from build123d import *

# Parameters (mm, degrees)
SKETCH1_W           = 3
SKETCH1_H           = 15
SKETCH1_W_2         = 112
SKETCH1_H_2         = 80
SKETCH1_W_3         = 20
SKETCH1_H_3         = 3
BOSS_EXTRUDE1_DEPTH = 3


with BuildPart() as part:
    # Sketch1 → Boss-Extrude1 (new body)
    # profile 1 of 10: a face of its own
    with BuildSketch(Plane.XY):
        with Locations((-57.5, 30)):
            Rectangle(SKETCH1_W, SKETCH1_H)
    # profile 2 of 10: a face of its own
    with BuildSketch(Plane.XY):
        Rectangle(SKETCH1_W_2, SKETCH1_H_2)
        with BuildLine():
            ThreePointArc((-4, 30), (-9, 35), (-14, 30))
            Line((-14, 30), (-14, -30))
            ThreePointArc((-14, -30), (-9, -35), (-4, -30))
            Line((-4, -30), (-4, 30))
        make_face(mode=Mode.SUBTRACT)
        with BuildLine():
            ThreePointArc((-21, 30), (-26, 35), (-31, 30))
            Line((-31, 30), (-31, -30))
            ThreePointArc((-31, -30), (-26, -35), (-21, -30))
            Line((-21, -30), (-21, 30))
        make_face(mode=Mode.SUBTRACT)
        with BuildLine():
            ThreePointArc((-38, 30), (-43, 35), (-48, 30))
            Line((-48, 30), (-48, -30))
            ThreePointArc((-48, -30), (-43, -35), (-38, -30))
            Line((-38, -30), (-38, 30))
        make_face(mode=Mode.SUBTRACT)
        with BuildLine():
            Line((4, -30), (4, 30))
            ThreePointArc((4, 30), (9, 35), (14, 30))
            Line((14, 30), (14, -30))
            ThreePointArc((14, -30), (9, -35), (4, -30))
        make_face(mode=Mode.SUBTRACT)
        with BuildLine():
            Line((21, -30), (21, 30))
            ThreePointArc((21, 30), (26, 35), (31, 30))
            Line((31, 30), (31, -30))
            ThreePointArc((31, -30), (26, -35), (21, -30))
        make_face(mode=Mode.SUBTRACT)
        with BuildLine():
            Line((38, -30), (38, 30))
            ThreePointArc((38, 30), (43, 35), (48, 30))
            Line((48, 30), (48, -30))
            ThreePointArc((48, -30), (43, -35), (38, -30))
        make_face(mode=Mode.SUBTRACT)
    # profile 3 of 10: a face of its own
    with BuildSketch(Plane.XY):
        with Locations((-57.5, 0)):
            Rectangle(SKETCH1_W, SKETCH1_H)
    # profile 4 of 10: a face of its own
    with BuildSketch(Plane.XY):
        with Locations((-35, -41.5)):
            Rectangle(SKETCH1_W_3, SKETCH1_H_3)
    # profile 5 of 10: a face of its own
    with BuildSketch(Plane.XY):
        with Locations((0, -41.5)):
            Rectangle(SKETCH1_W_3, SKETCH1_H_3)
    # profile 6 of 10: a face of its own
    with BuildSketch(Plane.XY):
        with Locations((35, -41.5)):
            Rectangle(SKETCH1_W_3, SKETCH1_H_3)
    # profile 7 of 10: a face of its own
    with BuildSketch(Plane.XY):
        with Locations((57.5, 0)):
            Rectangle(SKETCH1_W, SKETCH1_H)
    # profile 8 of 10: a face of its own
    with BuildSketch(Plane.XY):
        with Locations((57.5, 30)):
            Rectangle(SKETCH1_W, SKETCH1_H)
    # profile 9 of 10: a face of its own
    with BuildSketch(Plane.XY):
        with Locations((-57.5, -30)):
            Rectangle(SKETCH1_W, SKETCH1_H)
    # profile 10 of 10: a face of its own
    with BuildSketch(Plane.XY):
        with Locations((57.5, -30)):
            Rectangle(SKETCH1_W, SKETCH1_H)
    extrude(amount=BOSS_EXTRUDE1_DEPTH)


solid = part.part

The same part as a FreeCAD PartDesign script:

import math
import FreeCAD as App
import Part
import Sketcher
Q = App.Units.Quantity


def add_polygon(sketch, points):
    """Adds a closed chain of lines whose ends are joined by coincident constraints."""
    first, n = sketch.GeometryCount, len(points)
    for a, b in zip(points, points[1:] + points[:1]):
        sketch.addGeometry(Part.LineSegment(App.Vector(*a, 0), App.Vector(*b, 0)), False)
    for i in range(n):
        sketch.addConstraint(Sketcher.Constraint("Coincident", first + i, 2, first + (i + 1) % n, 1))

doc = App.newDocument("Part")
params = doc.addObject("Spreadsheet::Sheet", "Params")
for row, (alias, value) in enumerate([
    ("sketch1_radius", "5 mm"),
    ("sketch1_width", "3 mm"),
    ("sketch1_width2", "11 mm"),
    ("sketch1_width3", "20 mm"),
    ("sketch1_width4", "15 mm"),
    ("pad1_length", "3 mm"),
], start=1):
    params.set(f"A{row}", alias)
    params.set(f"B{row}", "=" + value)
    params.setAlias(f"B{row}", alias)

body = doc.addObject("PartDesign::Body", "Body")

# Sketch on XY plane
sketch1 = body.newObject("Sketcher::SketchObject", "Sketch")
sketch1.AttachmentSupport = (doc.getObject("XY_Plane"), [""])
sketch1.MapMode = "FlatFace"
add_polygon(sketch1, [(-59, 37.5), (-59, 22.5), (-56, 22.5), (-56, 7.5), (-59, 7.5), (-59, -7.5), (-56, -7.5), (-56, -22.5), (-59, -22.5), (-59, -37.5), (-56, -37.5), (-56, -40), (-45, -40), (-45, -43), (-25, -43), (-25, -40), (-10, -40), (-10, -43), (10, -43), (10, -40), (25, -40), (25, -43), (45, -43), (45, -40), (56, -40), (56, -37.5), (59, -37.5), (59, -22.5), (56, -22.5), (56, -7.5), (59, -7.5), (59, 7.5), (56, 7.5), (56, 22.5), (59, 22.5), (59, 37.5), (56, 37.5), (56, 40), (-56, 40), (-56, 37.5)])  # lines 0-39
sketch1.addGeometry(Part.LineSegment(App.Vector(38, -30, 0), App.Vector(38, 30, 0)), False)  # 40
sketch1.addGeometry(Part.ArcOfCircle(Part.Circle(App.Vector(43, 30, 0), App.Vector(0, 0, 1), 5), math.radians(0), math.radians(180)), False)  # 41
sketch1.addGeometry(Part.LineSegment(App.Vector(48, 30, 0), App.Vector(48, -30, 0)), False)  # 42
sketch1.addGeometry(Part.ArcOfCircle(Part.Circle(App.Vector(43, -30, 0), App.Vector(0, 0, 1), 5), math.radians(180), math.radians(360)), False)  # 43
sketch1.addGeometry(Part.ArcOfCircle(Part.Circle(App.Vector(-43, 30, 0), App.Vector(0, 0, 1), 5), math.radians(0), math.radians(180)), False)  # 44
sketch1.addGeometry(Part.LineSegment(App.Vector(-38, 30, 0), App.Vector(-38, -30, 0)), False)  # 45
sketch1.addGeometry(Part.ArcOfCircle(Part.Circle(App.Vector(-43, -30, 0), App.Vector(0, 0, 1), 5), math.radians(180), math.radians(360)), False)  # 46
sketch1.addGeometry(Part.LineSegment(App.Vector(-48, -30, 0), App.Vector(-48, 30, 0)), False)  # 47
sketch1.addGeometry(Part.ArcOfCircle(Part.Circle(App.Vector(-26, 30, 0), App.Vector(0, 0, 1), 5), math.radians(0), math.radians(180)), False)  # 48
sketch1.addGeometry(Part.LineSegment(App.Vector(-21, 30, 0), App.Vector(-21, -30, 0)), False)  # 49
sketch1.addGeometry(Part.ArcOfCircle(Part.Circle(App.Vector(-26, -30, 0), App.Vector(0, 0, 1), 5), math.radians(180), math.radians(360)), False)  # 50
sketch1.addGeometry(Part.LineSegment(App.Vector(-31, -30, 0), App.Vector(-31, 30, 0)), False)  # 51
sketch1.addGeometry(Part.ArcOfCircle(Part.Circle(App.Vector(-9, 30, 0), App.Vector(0, 0, 1), 5), math.radians(0), math.radians(180)), False)  # 52
sketch1.addGeometry(Part.LineSegment(App.Vector(-4, 30, 0), App.Vector(-4, -30, 0)), False)  # 53
sketch1.addGeometry(Part.ArcOfCircle(Part.Circle(App.Vector(-9, -30, 0), App.Vector(0, 0, 1), 5), math.radians(180), math.radians(360)), False)  # 54
sketch1.addGeometry(Part.LineSegment(App.Vector(-14, -30, 0), App.Vector(-14, 30, 0)), False)  # 55
sketch1.addGeometry(Part.ArcOfCircle(Part.Circle(App.Vector(9, -30, 0), App.Vector(0, 0, 1), 5), math.radians(180), math.radians(360)), False)  # 56
sketch1.addGeometry(Part.LineSegment(App.Vector(4, -30, 0), App.Vector(4, 30, 0)), False)  # 57
sketch1.addGeometry(Part.ArcOfCircle(Part.Circle(App.Vector(9, 30, 0), App.Vector(0, 0, 1), 5), math.radians(0), math.radians(180)), False)  # 58
sketch1.addGeometry(Part.LineSegment(App.Vector(14, 30, 0), App.Vector(14, -30, 0)), False)  # 59
sketch1.addGeometry(Part.ArcOfCircle(Part.Circle(App.Vector(26, -30, 0), App.Vector(0, 0, 1), 5), math.radians(180), math.radians(360)), False)  # 60
sketch1.addGeometry(Part.LineSegment(App.Vector(21, -30, 0), App.Vector(21, 30, 0)), False)  # 61
sketch1.addGeometry(Part.ArcOfCircle(Part.Circle(App.Vector(26, 30, 0), App.Vector(0, 0, 1), 5), math.radians(0), math.radians(180)), False)  # 62
sketch1.addGeometry(Part.LineSegment(App.Vector(31, 30, 0), App.Vector(31, -30, 0)), False)  # 63
sketch1.addConstraint([
    Sketcher.Constraint("Tangent", 40, 2, 41, 2),
    Sketcher.Constraint("Tangent", 41, 1, 42, 1),
    Sketcher.Constraint("Tangent", 42, 2, 43, 2),
    Sketcher.Constraint("Tangent", 43, 1, 40, 1),
    Sketcher.Constraint("Tangent", 44, 1, 45, 1),
    Sketcher.Constraint("Tangent", 45, 2, 46, 2),
    Sketcher.Constraint("Tangent", 46, 1, 47, 1),
    Sketcher.Constraint("Tangent", 47, 2, 44, 2),
    Sketcher.Constraint("Tangent", 48, 1, 49, 1),
    Sketcher.Constraint("Tangent", 49, 2, 50, 2),
    Sketcher.Constraint("Tangent", 50, 1, 51, 1),
    Sketcher.Constraint("Tangent", 51, 2, 48, 2),
    Sketcher.Constraint("Tangent", 52, 1, 53, 1),
    Sketcher.Constraint("Tangent", 53, 2, 54, 2),
    Sketcher.Constraint("Tangent", 54, 1, 55, 1),
    Sketcher.Constraint("Tangent", 55, 2, 52, 2),
    Sketcher.Constraint("Tangent", 56, 1, 57, 1),
    Sketcher.Constraint("Tangent", 57, 2, 58, 2),
    Sketcher.Constraint("Tangent", 58, 1, 59, 1),
    Sketcher.Constraint("Tangent", 59, 2, 56, 2),
    Sketcher.Constraint("Tangent", 60, 1, 61, 1),
    Sketcher.Constraint("Tangent", 61, 2, 62, 2),
    Sketcher.Constraint("Tangent", 62, 1, 63, 1),
    Sketcher.Constraint("Tangent", 63, 2, 60, 2),
    Sketcher.Constraint("Vertical", 0),
    Sketcher.Constraint("Horizontal", 1),
    Sketcher.Constraint("Vertical", 2),
    Sketcher.Constraint("Horizontal", 3),
    Sketcher.Constraint("Vertical", 4),
    Sketcher.Constraint("Horizontal", 5),
    Sketcher.Constraint("Vertical", 6),
    Sketcher.Constraint("Horizontal", 7),
    Sketcher.Constraint("Vertical", 8),
    Sketcher.Constraint("Horizontal", 9),
    Sketcher.Constraint("Vertical", 10),
    Sketcher.Constraint("Horizontal", 11),
    Sketcher.Constraint("Vertical", 12),
    Sketcher.Constraint("Horizontal", 13),
    Sketcher.Constraint("Vertical", 14),
    Sketcher.Constraint("Horizontal", 15),
    Sketcher.Constraint("Vertical", 16),
    Sketcher.Constraint("Horizontal", 17),
    Sketcher.Constraint("Vertical", 18),
    Sketcher.Constraint("Horizontal", 19),
    Sketcher.Constraint("Vertical", 20),
    Sketcher.Constraint("Horizontal", 21),
    Sketcher.Constraint("Vertical", 22),
    Sketcher.Constraint("Horizontal", 23),
    Sketcher.Constraint("Vertical", 24),
    Sketcher.Constraint("Horizontal", 25),
    Sketcher.Constraint("Vertical", 26),
    Sketcher.Constraint("Horizontal", 27),
    Sketcher.Constraint("Vertical", 28),
    Sketcher.Constraint("Horizontal", 29),
    Sketcher.Constraint("Vertical", 30),
    Sketcher.Constraint("Horizontal", 31),
    Sketcher.Constraint("Vertical", 32),
    Sketcher.Constraint("Horizontal", 33),
    Sketcher.Constraint("Vertical", 34),
    Sketcher.Constraint("Horizontal", 35),
    Sketcher.Constraint("Vertical", 36),
    Sketcher.Constraint("Horizontal", 37),
    Sketcher.Constraint("Vertical", 38),
    Sketcher.Constraint("Horizontal", 39),
    Sketcher.Constraint("Vertical", 40),
    Sketcher.Constraint("Vertical", 42),
    Sketcher.Constraint("Vertical", 45),
    Sketcher.Constraint("Vertical", 47),
    Sketcher.Constraint("Vertical", 49),
    Sketcher.Constraint("Vertical", 51),
    Sketcher.Constraint("Vertical", 53),
    Sketcher.Constraint("Vertical", 55),
    Sketcher.Constraint("Vertical", 57),
    Sketcher.Constraint("Vertical", 59),
    Sketcher.Constraint("Vertical", 61),
    Sketcher.Constraint("Vertical", 63),
    Sketcher.Constraint("Equal", 43, 44),
    Sketcher.Constraint("Equal", 46, 48),
    Sketcher.Constraint("Equal", 50, 52),
    Sketcher.Constraint("Equal", 54, 56),
    Sketcher.Constraint("Equal", 58, 60),
    Sketcher.Constraint("Symmetric", 43, 3, 44, 3, -1, 1),
    Sketcher.Constraint("Symmetric", 52, 3, 56, 3, -1, 1),
    Sketcher.Constraint("Symmetric", 48, 3, 60, 3, -1, 1),
    Sketcher.Constraint("Symmetric", 0, 2, 26, 2, -1, 1),
    Sketcher.Constraint("Symmetric", 2, 2, 28, 2, -1, 1),
    Sketcher.Constraint("Symmetric", 4, 2, 30, 2, -1, 1),
    Sketcher.Constraint("Symmetric", 6, 2, 32, 2, -1, 1),
    Sketcher.Constraint("Symmetric", 8, 2, 34, 2, -1, 1),
    Sketcher.Constraint("Symmetric", 10, 2, 36, 2, -1, 1),
    Sketcher.Constraint("Symmetric", 23, 2, 37, 2, -1, 1),
    Sketcher.Constraint("Symmetric", 15, 2, 18, 2, -2),
    Sketcher.Constraint("Symmetric", 13, 2, 20, 2, -2),
    Sketcher.Constraint("Symmetric", 9, 2, 24, 2, -2),
    Sketcher.Constraint("Symmetric", 7, 2, 26, 2, -2),
    Sketcher.Constraint("Symmetric", 5, 2, 28, 2, -2),
    Sketcher.Constraint("Horizontal", 41, 3, 44, 3),
    Sketcher.Constraint("Horizontal", 43, 3, 46, 3),
    Sketcher.Constraint("Horizontal", 44, 3, 48, 3),
    Sketcher.Constraint("Horizontal", 46, 3, 50, 3),
    Sketcher.Constraint("Horizontal", 48, 3, 52, 3),
    Sketcher.Constraint("Horizontal", 50, 3, 54, 3),
    Sketcher.Constraint("Horizontal", 52, 3, 58, 3),
    Sketcher.Constraint("Horizontal", 58, 3, 62, 3),
    Sketcher.Constraint("Horizontal", 11, 2, 14, 2),
    Sketcher.Constraint("Horizontal", 13, 2, 16, 2),
    Sketcher.Constraint("Horizontal", 35, 2, 38, 2),
    Sketcher.Constraint("Vertical", 0, 2, 3, 2),
    Sketcher.Constraint("Vertical", 6, 2, 9, 2),
    Sketcher.Constraint("Equal", 13, 17),
    Sketcher.Constraint("Equal", 17, 21),
    Sketcher.Constraint("Equal", 19, 0),
    Sketcher.Constraint("Equal", 0, 2),
    Sketcher.Constraint("Equal", 2, 4),
    Sketcher.Constraint("Equal", 39, 12),
    Sketcher.Constraint("Radius", 41, Q("5 mm")),
    Sketcher.Constraint("DistanceX", 1, 1, 1, 2, Q("3 mm")),
    Sketcher.Constraint("DistanceX", 11, 1, 11, 2, Q("11 mm")),
    Sketcher.Constraint("DistanceX", 13, 1, 13, 2, Q("20 mm")),
    Sketcher.Constraint("DistanceX", 15, 1, 15, 2, Q("15 mm")),
    Sketcher.Constraint("DistanceY", 40, 1, 40, 2, Q("60 mm")),
    Sketcher.Constraint("DistanceY", 10, 2, 10, 1, Q("2.5 mm")),
    Sketcher.Constraint("DistanceX", -1, 1, 41, 3, Q("43 mm")),
    Sketcher.Constraint("DistanceX", 48, 3, -1, 1, Q("26 mm")),
    Sketcher.Constraint("DistanceX", 52, 3, -1, 1, Q("9 mm")),
])
sketch1.setExpression("Constraints[155]", "Params.sketch1_radius")
sketch1.setExpression("Constraints[156]", "Params.sketch1_width")
sketch1.setExpression("Constraints[157]", "Params.sketch1_width2")
sketch1.setExpression("Constraints[158]", "Params.sketch1_width3")
sketch1.setExpression("Constraints[159]", "Params.sketch1_width4")
pad1 = body.newObject("PartDesign::Pad", "Pad")
pad1.Profile = sketch1
pad1.setExpression("Length", "Params.pad1_length")

doc.recompute()
